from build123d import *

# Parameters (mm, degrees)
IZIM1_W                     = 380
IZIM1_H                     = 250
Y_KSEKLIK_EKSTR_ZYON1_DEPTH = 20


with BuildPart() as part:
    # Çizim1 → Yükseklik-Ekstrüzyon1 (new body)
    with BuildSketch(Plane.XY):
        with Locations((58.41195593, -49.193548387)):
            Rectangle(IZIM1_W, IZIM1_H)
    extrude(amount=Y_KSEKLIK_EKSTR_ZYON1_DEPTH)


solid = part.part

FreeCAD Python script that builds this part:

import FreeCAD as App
import Part
import Sketcher
Q = App.Units.Quantity


def add_polygon(sketch, points):
    """Adds a closed chain of lines whose ends are joined by coincident constraints."""
    first, n = sketch.GeometryCount, len(points)
    for a, b in zip(points, points[1:] + points[:1]):
        sketch.addGeometry(Part.LineSegment(App.Vector(*a, 0), App.Vector(*b, 0)), False)
    for i in range(n):
        sketch.addConstraint(Sketcher.Constraint("Coincident", first + i, 2, first + (i + 1) % n, 1))

doc = App.newDocument("Part")
body = doc.addObject("PartDesign::Body", "Body")

# Sketch on XY plane
sketch1 = doc.addObject("Sketcher::SketchObject", "Sketch")
body.addObject(sketch1)
sketch1.AttachmentSupport = (doc.XY_Plane, [""])
sketch1.MapMode = "FlatFace"
add_polygon(sketch1, [(-132, 76), (-132, -174), (248, -174), (248, 76)])  # lines 0-3
sketch1.addConstraint(Sketcher.Constraint("Vertical", 0))
sketch1.addConstraint(Sketcher.Constraint("Horizontal", 1))
sketch1.addConstraint(Sketcher.Constraint("Vertical", 2))
sketch1.addConstraint(Sketcher.Constraint("Horizontal", 3))
sketch1.addConstraint(Sketcher.Constraint("DistanceX", 1, 1, 1, 2, Q("380 mm")))
sketch1.addConstraint(Sketcher.Constraint("DistanceY", 0, 2, 0, 1, Q("250 mm")))
sketch1.addConstraint(Sketcher.Constraint("DistanceY", 0, 2, -1, 1, Q("174.193548 mm")))
sketch1.addConstraint(Sketcher.Constraint("DistanceX", 0, 2, -1, 1, Q("131.588044 mm")))
pad1 = doc.addObject("PartDesign::Pad", "Pad")
body.addObject(pad1)
pad1.Profile = sketch1
pad1.Length = 20

doc.recompute()
